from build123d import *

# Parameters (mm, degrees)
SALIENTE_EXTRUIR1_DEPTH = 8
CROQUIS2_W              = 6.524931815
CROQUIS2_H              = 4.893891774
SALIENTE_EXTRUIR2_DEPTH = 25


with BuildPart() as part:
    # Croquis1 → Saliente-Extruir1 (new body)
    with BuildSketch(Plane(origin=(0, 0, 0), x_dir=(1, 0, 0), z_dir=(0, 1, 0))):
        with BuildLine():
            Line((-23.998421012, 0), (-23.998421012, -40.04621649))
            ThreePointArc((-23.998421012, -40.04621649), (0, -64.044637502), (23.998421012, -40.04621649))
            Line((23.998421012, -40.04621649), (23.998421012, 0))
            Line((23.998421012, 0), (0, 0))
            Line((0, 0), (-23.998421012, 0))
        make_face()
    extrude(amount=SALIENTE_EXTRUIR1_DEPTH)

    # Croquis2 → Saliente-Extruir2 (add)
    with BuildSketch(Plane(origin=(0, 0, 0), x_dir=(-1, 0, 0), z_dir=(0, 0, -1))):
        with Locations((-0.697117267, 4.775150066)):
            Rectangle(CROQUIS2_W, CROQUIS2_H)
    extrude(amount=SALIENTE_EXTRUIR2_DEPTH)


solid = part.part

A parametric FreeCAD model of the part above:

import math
import FreeCAD as App
import Part
import Sketcher

V = App.Vector

doc = App.newDocument("Part")
params = doc.addObject("Spreadsheet::Sheet", "Params")
for row, (alias, value) in enumerate([
    ("pad1_length", "8 mm"),
    ("pad2_length", "25 mm"),
], start=1):
    params.set(f"A{row}", alias)
    params.set(f"B{row}", "=" + value)
    params.setAlias(f"B{row}", alias)

body = doc.addObject("PartDesign::Body", "Body")

# Sketch on XZ plane
sketch1 = body.newObject("Sketcher::SketchObject", "Sketch")
sketch1.AttachmentSupport = (doc.getObject("XZ_Plane"), [""])
sketch1.MapMode = "FlatFace"
sketch1.addGeometry(Part.LineSegment(V(-23.998421, 0, 0), V(-23.998421, 40.046216, 0)), False)
sketch1.addGeometry(Part.ArcOfCircle(Part.Circle(V(0, 40.046216, 0), V(0, 0, 1), 23.998421), math.radians(0), math.radians(180)), False)
sketch1.addGeometry(Part.LineSegment(V(23.998421, 40.046216, 0), V(23.998421, 0, 0)), False)
sketch1.addGeometry(Part.LineSegment(V(23.998421, 0, 0), V(-23.998421, 0, 0)), False)
sketch1.addConstraint(Sketcher.Constraint("Tangent", 0, 2, 1, 2))
sketch1.addConstraint(Sketcher.Constraint("Tangent", 1, 1, 2, 1))
sketch1.addConstraint(Sketcher.Constraint("Coincident", 2, 2, 3, 1))
sketch1.addConstraint(Sketcher.Constraint("Coincident", 3, 2, 0, 1))
sketch1.addConstraint(Sketcher.Constraint("Vertical", 0))
sketch1.addConstraint(Sketcher.Constraint("Vertical", 2))
sketch1.addConstraint(Sketcher.Constraint("Horizontal", 3))
sketch1.addConstraint(Sketcher.Constraint("Symmetric", 2, 2, 3, 2, -1, 1))
sketch1.addConstraint(Sketcher.Constraint("Radius", 1, 23.998421))
sketch1.addConstraint(Sketcher.Constraint("DistanceY", 0, 1, 0, 2, 40.046216))
pad1 = body.newObject("PartDesign::Pad", "Pad")
pad1.Profile = sketch1
pad1.setExpression("Length", "Params.pad1_length")
pad1.Reversed = True

# Sketch on XY plane
sketch2 = body.newObject("Sketcher::SketchObject", "Sketch001")
sketch2.AttachmentSupport = (doc.getObject("XY_Plane"), [""])
sketch2.MapMode = "FlatFace"
sketch2.addGeometry(Part.LineSegment(V(3.959583, 7.222096, 0), V(3.959583, 2.328204, 0)), False)
sketch2.addGeometry(Part.LineSegment(V(3.959583, 2.328204, 0), V(-2.565349, 2.328204, 0)), False)
sketch2.addGeometry(Part.LineSegment(V(-2.565349, 2.328204, 0), V(-2.565349, 7.222096, 0)), False)
sketch2.addGeometry(Part.LineSegment(V(-2.565349, 7.222096, 0), V(3.959583, 7.222096, 0)), False)
sketch2.addConstraint(Sketcher.Constraint("Coincident", 0, 2, 1, 1))
sketch2.addConstraint(Sketcher.Constraint("Coincident", 1, 2, 2, 1))
sketch2.addConstraint(Sketcher.Constraint("Coincident", 2, 2, 3, 1))
sketch2.addConstraint(Sketcher.Constraint("Coincident", 3, 2, 0, 1))
sketch2.addConstraint(Sketcher.Constraint("Vertical", 0))
sketch2.addConstraint(Sketcher.Constraint("Horizontal", 1))
sketch2.addConstraint(Sketcher.Constraint("Vertical", 2))
sketch2.addConstraint(Sketcher.Constraint("Horizontal", 3))
sketch2.addConstraint(Sketcher.Constraint("DistanceX", 1, 2, 1, 1, 6.524932))
sketch2.addConstraint(Sketcher.Constraint("DistanceY", 0, 2, 0, 1, 4.893892))
sketch2.addConstraint(Sketcher.Constraint("DistanceX", 1, 2, -1, 1, 2.565349))
sketch2.addConstraint(Sketcher.Constraint("DistanceY", -1, 1, 0, 2, 2.328204))
pad2 = body.newObject("PartDesign::Pad", "Pad001")
pad2.Profile = sketch2
pad2.setExpression("Length", "Params.pad2_length")
pad2.Reversed = True

doc.recompute()
